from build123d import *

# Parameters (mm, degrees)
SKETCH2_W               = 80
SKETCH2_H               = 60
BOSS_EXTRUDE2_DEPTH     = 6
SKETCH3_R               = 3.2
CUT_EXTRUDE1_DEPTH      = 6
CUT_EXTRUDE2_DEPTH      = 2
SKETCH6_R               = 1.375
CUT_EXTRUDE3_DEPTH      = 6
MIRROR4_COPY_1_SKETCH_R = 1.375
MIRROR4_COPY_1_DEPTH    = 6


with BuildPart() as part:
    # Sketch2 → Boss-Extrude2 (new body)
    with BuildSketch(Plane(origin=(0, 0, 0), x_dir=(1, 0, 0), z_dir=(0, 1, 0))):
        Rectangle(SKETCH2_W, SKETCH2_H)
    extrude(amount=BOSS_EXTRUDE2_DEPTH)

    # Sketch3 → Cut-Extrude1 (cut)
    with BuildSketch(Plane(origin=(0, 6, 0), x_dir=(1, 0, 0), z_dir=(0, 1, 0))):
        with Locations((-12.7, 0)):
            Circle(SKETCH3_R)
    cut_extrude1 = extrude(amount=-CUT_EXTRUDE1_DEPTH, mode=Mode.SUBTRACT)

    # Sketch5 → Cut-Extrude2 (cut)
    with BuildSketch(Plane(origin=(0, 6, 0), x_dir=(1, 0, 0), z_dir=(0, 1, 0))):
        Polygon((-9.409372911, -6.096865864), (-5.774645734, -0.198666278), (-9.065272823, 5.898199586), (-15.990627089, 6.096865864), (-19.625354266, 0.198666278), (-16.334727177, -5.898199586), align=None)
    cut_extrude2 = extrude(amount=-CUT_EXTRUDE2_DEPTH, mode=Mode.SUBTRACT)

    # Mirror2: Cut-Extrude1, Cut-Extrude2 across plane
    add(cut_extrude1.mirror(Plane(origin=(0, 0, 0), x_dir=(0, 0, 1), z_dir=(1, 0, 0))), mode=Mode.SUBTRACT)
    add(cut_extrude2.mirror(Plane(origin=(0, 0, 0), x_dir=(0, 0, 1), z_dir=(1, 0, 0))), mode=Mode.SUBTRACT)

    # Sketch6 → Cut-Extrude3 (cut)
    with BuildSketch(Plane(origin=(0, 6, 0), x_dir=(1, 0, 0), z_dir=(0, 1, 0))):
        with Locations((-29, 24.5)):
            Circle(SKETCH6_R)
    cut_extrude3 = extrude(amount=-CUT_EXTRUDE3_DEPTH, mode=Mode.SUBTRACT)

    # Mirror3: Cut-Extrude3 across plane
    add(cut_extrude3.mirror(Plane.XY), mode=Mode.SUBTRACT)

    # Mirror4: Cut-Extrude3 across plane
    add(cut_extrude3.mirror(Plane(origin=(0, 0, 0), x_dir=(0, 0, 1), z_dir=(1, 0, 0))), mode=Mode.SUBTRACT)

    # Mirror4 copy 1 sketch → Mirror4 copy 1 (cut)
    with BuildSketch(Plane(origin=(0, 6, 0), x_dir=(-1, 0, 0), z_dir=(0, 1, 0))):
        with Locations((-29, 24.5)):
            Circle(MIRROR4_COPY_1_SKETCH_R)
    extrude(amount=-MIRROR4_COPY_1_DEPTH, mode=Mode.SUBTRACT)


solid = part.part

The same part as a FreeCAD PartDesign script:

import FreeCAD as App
import Part
import Sketcher

V = App.Vector


def add_polygon(sketch, points):
    """Adds a closed chain of lines whose ends are joined by coincident constraints."""
    first, n = sketch.GeometryCount, len(points)
    for a, b in zip(points, points[1:] + points[:1]):
        sketch.addGeometry(Part.LineSegment(App.Vector(*a, 0), App.Vector(*b, 0)), False)
    for i in range(n):
        sketch.addConstraint(Sketcher.Constraint("Coincident", first + i, 2, first + (i + 1) % n, 1))

doc = App.newDocument("Part")
body = doc.addObject("PartDesign::Body", "Body")

sketch1 = body.newObject("Sketcher::SketchObject", "Sketch")
sketch1.AttachmentSupport = (doc.getObject("XZ_Plane"), [""])
sketch1.MapMode = "FlatFace"
add_polygon(sketch1, [(-40, -30), (-40, 30), (40, 30), (40, -30)])
sketch1.addConstraint([
    Sketcher.Constraint("Vertical", 0),
    Sketcher.Constraint("Horizontal", 1),
    Sketcher.Constraint("Vertical", 2),
    Sketcher.Constraint("Horizontal", 3),
    Sketcher.Constraint("Symmetric", 0, 2, 2, 2, -1, 1),
    Sketcher.Constraint("DistanceX", 1, 1, 1, 2, 80.0),
    Sketcher.Constraint("DistanceY", 0, 1, 0, 2, 60.0),
])
pad1 = body.newObject("PartDesign::Pad", "Pad")
pad1.Profile = sketch1
pad1.Length = 6
pad1.Reversed = True

sketch2 = body.newObject("Sketcher::SketchObject", "Sketch001")
sketch2.AttachmentSupport = (doc.getObject("XZ_Plane"), [""])
sketch2.MapMode = "FlatFace"
sketch2.AttachmentOffset = App.Placement(V(0, 0, -6), App.Rotation())
sketch2.addGeometry(Part.Circle(V(-12.7, 0, 0), V(0, 0, 1), 3.2), False)
sketch2.addConstraint([
    Sketcher.Constraint("PointOnObject", 0, 3, -1),
    Sketcher.Constraint("Diameter", 0, 6.4),
    Sketcher.Constraint("DistanceX", 0, 3, -1, 1, 12.7),
])
pocket1 = body.newObject("PartDesign::Pocket", "Pocket")
pocket1.Profile = sketch2
pocket1.Length = 6
pocket1.Reversed = True

sketch3 = body.newObject("Sketcher::SketchObject", "Sketch002")
sketch3.AttachmentSupport = (doc.getObject("XZ_Plane"), [""])
sketch3.MapMode = "FlatFace"
sketch3.AttachmentOffset = App.Placement(V(0, 0, -6), App.Rotation())
add_polygon(sketch3, [(-9, 6), (-6, 0), (-9, -6), (-16, -6), (-20, 0), (-16, 6)])
sketch3.addConstraint([
    Sketcher.Constraint("Parallel", 0, 3),
    Sketcher.Constraint("Parallel", 1, 4),
    Sketcher.Constraint("Parallel", 2, 5),
    Sketcher.Constraint("Equal", 0, 1),
    Sketcher.Constraint("Equal", 1, 2),
    Sketcher.Constraint("Equal", 2, 3),
    Sketcher.Constraint("DistanceY", 1, 2, -1, 1, 5.8982),
    Sketcher.Constraint("DistanceY", -1, 1, 4, 2, 5.8982),
    Sketcher.Constraint("DistanceY", 2, 2, 3, 2, 5.8982),
    Sketcher.Constraint("DistanceX", 4, 2, 2, 2, 0.3441),
    Sketcher.Constraint("DistanceX", 2, 2, 0, 2, 10.215981),
    Sketcher.Constraint("DistanceX", 0, 2, -1, 1, 5.774646),
])
pocket2 = body.newObject("PartDesign::Pocket", "Pocket001")
pocket2.Profile = sketch3
pocket2.Length = 2
pocket2.Reversed = True
doc.recompute()

mirrored = body.newObject("PartDesign::Mirrored", "Mirrored")
mirrored.Originals = [pocket1, pocket2]
mirrored.MirrorPlane = (doc.getObject("YZ_Plane"), [""])
body.Tip = mirrored

sketch4 = body.newObject("Sketcher::SketchObject", "Sketch003")
sketch4.AttachmentSupport = (doc.getObject("XZ_Plane"), [""])
sketch4.MapMode = "FlatFace"
sketch4.AttachmentOffset = App.Placement(V(0, 0, -6), App.Rotation())
sketch4.addGeometry(Part.Circle(V(-29, -24.5, 0), V(0, 0, 1), 1.4), False)
sketch4.addConstraint([
    Sketcher.Constraint("Diameter", 0, 2.75),
    Sketcher.Constraint("DistanceX", 0, 3, -1, 1, 29.0),
    Sketcher.Constraint("DistanceY", 0, 3, -1, 1, 24.5),
])
pocket3 = body.newObject("PartDesign::Pocket", "Pocket002")
pocket3.Profile = sketch4
pocket3.Length = 6
pocket3.Reversed = True
doc.recompute()

mirrored2 = body.newObject("PartDesign::Mirrored", "Mirrored001")
mirrored2.Originals = [pocket3]
mirrored2.MirrorPlane = (doc.getObject("XY_Plane"), [""])
body.Tip = mirrored2
doc.recompute()

mirrored3 = body.newObject("PartDesign::Mirrored", "Mirrored002")
mirrored3.Originals = [pocket3]
mirrored3.MirrorPlane = (doc.getObject("YZ_Plane"), [""])
body.Tip = mirrored3

sketch5 = body.newObject("Sketcher::SketchObject", "Sketch004")
sketch5.AttachmentSupport = (doc.getObject("XZ_Plane"), [""])
sketch5.MapMode = "FlatFace"
sketch5.AttachmentOffset = App.Placement(V(0, 0, -6), App.Rotation())
sketch5.addGeometry(Part.Circle(V(29, 24.5, 0), V(0, 0, 1), 1.4), False)
sketch5.addConstraint([
    Sketcher.Constraint("Diameter", 0, 2.75),
    Sketcher.Constraint("DistanceX", -1, 1, 0, 3, 29.0),
    Sketcher.Constraint("DistanceY", -1, 1, 0, 3, 24.5),
])
pocket4 = body.newObject("PartDesign::Pocket", "Pocket003")
pocket4.Profile = sketch5
pocket4.Length = 6
pocket4.Reversed = True

doc.recompute()
